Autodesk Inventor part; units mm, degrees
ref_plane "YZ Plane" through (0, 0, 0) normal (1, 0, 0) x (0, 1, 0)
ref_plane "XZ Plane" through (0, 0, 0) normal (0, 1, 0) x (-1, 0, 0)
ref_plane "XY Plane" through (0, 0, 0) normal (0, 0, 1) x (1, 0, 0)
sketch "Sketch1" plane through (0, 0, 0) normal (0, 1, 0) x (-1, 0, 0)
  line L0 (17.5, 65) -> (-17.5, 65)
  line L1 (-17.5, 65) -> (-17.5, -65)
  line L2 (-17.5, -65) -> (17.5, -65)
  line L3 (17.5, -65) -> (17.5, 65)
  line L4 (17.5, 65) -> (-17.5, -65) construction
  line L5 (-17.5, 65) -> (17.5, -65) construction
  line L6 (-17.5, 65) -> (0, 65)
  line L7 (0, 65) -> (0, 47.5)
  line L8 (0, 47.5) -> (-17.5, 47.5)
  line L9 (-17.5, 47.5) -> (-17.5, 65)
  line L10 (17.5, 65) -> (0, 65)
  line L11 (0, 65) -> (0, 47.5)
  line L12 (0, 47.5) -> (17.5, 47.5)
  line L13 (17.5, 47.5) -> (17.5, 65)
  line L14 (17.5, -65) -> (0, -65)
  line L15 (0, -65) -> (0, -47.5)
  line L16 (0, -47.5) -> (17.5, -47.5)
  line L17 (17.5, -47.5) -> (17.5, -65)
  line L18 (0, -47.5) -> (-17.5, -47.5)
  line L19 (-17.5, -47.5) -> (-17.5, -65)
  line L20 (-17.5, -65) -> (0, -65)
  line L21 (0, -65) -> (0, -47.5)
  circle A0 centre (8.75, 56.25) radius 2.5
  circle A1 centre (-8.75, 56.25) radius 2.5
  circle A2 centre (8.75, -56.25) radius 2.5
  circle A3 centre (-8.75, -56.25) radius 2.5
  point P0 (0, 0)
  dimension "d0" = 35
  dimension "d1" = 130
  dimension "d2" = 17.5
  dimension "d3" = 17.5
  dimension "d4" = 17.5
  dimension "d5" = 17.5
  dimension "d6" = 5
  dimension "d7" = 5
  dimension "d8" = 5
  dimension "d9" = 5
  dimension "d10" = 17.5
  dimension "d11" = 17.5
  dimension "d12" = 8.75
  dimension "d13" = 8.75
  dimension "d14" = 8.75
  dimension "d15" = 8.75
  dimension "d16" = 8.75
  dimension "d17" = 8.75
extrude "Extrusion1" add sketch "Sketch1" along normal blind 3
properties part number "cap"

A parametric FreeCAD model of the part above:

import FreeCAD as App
import Part
import Sketcher
from FreeCAD import Vector


def add_polygon(sketch, points):
    """Adds a closed chain of lines whose ends are joined by coincident constraints."""
    first, n = sketch.GeometryCount, len(points)
    for a, b in zip(points, points[1:] + points[:1]):
        sketch.addGeometry(Part.LineSegment(App.Vector(*a, 0), App.Vector(*b, 0)), False)
    for i in range(n):
        sketch.addConstraint(Sketcher.Constraint("Coincident", first + i, 2, first + (i + 1) % n, 1))

doc = App.newDocument("Part")
body = doc.addObject("PartDesign::Body", "Body")

# Sketch on XZ plane
sketch1 = body.newObject("Sketcher::SketchObject", "Sketch")
sketch1.AttachmentSupport = (doc.getObject("XZ_Plane"), [""])
sketch1.MapMode = "FlatFace"
add_polygon(sketch1, [(-17.5, 65), (17.5, 65), (17.5, -65), (-17.5, -65)])  # lines 0-3
sketch1.addGeometry(Part.Circle(Vector(-8.75, 56.25, 0), Vector(0, 0, 1), 2.5), False)  # 4
sketch1.addGeometry(Part.Circle(Vector(8.75, 56.25, 0), Vector(0, 0, 1), 2.5), False)  # 5
sketch1.addGeometry(Part.Circle(Vector(-8.75, -56.25, 0), Vector(0, 0, 1), 2.5), False)  # 6
sketch1.addGeometry(Part.Circle(Vector(8.75, -56.25, 0), Vector(0, 0, 1), 2.5), False)  # 7
sketch1.addConstraint(Sketcher.Constraint("Horizontal", 0))
sketch1.addConstraint(Sketcher.Constraint("Vertical", 1))
sketch1.addConstraint(Sketcher.Constraint("Horizontal", 2))
sketch1.addConstraint(Sketcher.Constraint("Vertical", 3))
sketch1.addConstraint(Sketcher.Constraint("Equal", 4, 5))
sketch1.addConstraint(Sketcher.Constraint("Equal", 5, 6))
sketch1.addConstraint(Sketcher.Constraint("Equal", 6, 7))
sketch1.addConstraint(Sketcher.Constraint("Symmetric", 5, 3, 6, 3, -1, 1))
sketch1.addConstraint(Sketcher.Constraint("Symmetric", 4, 3, 7, 3, -1, 1))
sketch1.addConstraint(Sketcher.Constraint("Symmetric", 0, 2, 2, 2, -1, 1))
sketch1.addConstraint(Sketcher.Constraint("Symmetric", 4, 3, 5, 3, -2))
sketch1.addConstraint(Sketcher.Constraint("Diameter", 4, 5.0))
sketch1.addConstraint(Sketcher.Constraint("DistanceX", 0, 1, 0, 2, 35.0))
sketch1.addConstraint(Sketcher.Constraint("DistanceY", 1, 2, 1, 1, 130.0))
sketch1.addConstraint(Sketcher.Constraint("DistanceX", 4, 3, 5, 3, 17.5))
sketch1.addConstraint(Sketcher.Constraint("DistanceY", 5, 3, 0, 2, 8.75))
pad1 = body.newObject("PartDesign::Pad", "Pad")
pad1.Profile = sketch1
pad1.Length = 3
pad1.Reversed = True

doc.recompute()
